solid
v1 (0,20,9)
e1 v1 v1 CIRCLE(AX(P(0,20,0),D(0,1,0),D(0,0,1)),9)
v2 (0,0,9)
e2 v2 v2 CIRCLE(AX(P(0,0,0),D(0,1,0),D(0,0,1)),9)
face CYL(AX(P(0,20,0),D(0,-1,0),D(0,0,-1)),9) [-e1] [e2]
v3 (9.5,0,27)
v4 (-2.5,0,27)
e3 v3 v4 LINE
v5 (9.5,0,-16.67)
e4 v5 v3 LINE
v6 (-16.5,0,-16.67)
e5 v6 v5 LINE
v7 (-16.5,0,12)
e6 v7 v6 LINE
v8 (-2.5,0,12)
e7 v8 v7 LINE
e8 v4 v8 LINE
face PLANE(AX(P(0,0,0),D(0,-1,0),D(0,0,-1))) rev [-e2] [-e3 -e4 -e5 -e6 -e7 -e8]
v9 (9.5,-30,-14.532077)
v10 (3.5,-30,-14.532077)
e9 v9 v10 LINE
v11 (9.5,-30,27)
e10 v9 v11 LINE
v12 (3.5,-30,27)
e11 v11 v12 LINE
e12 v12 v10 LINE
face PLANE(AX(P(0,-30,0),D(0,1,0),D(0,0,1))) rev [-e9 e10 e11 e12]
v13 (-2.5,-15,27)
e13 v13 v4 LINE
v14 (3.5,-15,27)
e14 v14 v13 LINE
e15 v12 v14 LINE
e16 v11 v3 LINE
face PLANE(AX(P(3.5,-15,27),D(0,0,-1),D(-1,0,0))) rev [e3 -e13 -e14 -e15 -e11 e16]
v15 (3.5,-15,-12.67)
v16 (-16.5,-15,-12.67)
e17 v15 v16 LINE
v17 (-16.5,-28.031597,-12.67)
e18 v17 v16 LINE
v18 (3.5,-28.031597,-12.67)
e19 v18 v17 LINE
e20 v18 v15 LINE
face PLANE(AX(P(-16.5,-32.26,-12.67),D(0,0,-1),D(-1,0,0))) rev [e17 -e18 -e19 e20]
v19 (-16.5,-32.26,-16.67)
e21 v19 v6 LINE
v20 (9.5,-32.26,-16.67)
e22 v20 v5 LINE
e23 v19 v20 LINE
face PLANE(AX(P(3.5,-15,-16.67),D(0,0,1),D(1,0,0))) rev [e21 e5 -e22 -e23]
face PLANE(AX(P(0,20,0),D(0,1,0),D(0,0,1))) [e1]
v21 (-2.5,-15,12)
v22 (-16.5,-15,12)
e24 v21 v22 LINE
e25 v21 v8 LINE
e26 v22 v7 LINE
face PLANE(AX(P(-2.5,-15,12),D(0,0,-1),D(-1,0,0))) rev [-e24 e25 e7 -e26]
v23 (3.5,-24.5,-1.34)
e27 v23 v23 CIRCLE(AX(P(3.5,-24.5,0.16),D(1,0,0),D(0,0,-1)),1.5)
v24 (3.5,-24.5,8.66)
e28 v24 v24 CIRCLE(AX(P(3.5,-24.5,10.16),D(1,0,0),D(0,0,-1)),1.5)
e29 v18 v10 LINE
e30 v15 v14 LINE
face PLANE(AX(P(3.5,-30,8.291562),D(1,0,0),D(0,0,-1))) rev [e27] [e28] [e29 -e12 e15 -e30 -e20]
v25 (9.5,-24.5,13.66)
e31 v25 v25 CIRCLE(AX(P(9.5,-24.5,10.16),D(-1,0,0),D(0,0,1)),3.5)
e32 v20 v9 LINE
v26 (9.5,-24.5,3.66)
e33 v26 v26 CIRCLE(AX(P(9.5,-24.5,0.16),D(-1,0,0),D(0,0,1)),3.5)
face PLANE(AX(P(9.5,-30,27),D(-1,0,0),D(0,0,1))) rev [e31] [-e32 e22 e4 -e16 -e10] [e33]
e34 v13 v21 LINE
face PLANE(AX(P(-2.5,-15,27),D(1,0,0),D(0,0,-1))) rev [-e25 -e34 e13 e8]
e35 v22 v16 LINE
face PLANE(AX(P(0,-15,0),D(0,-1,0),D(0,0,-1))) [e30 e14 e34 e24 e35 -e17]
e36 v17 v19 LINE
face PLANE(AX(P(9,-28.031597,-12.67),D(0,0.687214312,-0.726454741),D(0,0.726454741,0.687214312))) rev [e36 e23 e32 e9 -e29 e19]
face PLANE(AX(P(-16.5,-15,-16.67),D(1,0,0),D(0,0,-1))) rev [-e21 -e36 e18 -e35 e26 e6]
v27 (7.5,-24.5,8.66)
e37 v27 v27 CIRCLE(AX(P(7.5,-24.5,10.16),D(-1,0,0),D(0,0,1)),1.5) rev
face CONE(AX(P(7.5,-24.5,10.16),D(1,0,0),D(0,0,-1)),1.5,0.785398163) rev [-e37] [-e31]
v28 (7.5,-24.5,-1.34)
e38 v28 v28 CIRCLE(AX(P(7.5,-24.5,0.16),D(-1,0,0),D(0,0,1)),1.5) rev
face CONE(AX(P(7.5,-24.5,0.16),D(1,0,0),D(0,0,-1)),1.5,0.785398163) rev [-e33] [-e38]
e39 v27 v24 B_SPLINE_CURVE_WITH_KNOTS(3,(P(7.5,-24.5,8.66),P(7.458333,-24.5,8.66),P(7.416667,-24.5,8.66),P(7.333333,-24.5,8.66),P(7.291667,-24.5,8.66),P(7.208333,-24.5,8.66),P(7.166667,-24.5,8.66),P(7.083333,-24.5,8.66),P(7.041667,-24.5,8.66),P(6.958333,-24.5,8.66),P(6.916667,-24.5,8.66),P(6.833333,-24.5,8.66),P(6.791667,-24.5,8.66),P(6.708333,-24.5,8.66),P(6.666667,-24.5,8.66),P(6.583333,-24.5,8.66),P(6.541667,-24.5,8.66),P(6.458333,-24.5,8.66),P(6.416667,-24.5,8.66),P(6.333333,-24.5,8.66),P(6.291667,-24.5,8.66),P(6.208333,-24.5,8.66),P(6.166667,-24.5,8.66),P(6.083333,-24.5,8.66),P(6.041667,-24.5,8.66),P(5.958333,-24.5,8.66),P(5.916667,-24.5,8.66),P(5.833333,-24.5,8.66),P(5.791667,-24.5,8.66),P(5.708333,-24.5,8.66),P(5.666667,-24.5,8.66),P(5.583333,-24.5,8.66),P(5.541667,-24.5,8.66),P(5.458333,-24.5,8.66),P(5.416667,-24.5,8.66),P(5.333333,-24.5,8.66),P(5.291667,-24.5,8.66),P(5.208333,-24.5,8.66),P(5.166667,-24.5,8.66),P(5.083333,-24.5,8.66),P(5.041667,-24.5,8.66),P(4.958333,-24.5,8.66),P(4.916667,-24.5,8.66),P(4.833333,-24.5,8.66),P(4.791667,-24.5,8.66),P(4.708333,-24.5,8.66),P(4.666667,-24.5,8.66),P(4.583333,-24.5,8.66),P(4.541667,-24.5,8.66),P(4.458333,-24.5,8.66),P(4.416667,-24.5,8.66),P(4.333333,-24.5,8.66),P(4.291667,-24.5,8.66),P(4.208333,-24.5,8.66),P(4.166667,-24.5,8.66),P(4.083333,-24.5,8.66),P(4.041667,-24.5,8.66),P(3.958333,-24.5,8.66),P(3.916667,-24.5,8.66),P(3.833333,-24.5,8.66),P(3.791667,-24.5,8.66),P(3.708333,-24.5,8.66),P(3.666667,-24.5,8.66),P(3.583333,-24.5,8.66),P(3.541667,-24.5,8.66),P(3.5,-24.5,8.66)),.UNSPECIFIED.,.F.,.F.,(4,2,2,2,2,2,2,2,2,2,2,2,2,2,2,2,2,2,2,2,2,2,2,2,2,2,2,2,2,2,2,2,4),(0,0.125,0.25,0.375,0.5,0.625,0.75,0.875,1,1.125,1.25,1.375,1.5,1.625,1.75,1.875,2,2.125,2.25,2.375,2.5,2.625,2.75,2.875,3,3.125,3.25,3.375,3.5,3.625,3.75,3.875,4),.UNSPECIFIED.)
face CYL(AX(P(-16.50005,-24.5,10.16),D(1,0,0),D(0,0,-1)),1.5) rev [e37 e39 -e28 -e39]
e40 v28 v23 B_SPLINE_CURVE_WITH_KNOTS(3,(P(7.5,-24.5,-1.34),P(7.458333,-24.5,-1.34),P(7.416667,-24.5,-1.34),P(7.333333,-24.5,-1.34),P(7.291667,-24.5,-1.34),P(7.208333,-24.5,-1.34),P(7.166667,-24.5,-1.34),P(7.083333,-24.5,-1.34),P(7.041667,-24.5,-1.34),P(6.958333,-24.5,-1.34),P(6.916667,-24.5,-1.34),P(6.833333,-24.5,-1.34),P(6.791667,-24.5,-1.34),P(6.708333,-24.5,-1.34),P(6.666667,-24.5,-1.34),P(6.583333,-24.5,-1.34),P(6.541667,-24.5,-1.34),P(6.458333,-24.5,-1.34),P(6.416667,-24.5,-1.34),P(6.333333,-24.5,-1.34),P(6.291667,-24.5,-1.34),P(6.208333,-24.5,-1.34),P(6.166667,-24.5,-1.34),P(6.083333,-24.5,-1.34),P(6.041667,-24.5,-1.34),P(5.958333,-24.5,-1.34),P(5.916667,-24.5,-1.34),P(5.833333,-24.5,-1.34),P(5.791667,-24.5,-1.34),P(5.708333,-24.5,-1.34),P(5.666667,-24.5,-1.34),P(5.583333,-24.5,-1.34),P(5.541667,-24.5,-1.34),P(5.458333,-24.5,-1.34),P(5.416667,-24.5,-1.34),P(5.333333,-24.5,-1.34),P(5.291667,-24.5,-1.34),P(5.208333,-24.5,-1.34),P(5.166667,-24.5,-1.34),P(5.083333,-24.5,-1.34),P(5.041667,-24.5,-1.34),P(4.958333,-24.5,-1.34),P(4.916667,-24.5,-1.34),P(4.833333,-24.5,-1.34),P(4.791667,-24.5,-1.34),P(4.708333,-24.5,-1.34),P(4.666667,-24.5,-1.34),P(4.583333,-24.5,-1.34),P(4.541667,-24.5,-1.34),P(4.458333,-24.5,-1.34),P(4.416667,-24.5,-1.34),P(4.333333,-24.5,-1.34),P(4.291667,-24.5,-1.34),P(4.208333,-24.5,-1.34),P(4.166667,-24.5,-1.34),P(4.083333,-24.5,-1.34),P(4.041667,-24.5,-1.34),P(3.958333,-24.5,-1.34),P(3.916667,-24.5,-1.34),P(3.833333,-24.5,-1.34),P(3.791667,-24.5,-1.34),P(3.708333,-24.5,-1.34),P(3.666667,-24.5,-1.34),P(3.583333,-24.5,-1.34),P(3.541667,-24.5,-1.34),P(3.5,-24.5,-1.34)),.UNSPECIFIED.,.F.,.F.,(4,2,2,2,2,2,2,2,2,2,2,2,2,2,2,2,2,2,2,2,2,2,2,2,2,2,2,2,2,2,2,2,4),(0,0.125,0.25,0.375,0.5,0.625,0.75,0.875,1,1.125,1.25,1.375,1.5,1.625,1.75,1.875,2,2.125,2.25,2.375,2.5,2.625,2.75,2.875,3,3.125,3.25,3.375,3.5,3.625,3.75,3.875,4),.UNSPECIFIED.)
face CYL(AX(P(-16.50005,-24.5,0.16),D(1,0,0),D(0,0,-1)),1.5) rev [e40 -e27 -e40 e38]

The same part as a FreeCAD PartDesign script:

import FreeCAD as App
import Part
import Sketcher

V = App.Vector
Q = App.Units.Quantity


def edges_at(feature, points):
    """Names of the edges that pass closest to the given points."""
    edges = feature.Shape.Edges
    near = lambda p: min(range(len(edges)), key=lambda i: edges[i].distToShape(Part.Vertex(*p))[0])
    return sorted({f"Edge{near(p) + 1}" for p in points})


def add_polygon(sketch, points):
    """Adds a closed chain of lines whose ends are joined by coincident constraints."""
    first, n = sketch.GeometryCount, len(points)
    for a, b in zip(points, points[1:] + points[:1]):
        sketch.addGeometry(Part.LineSegment(App.Vector(*a, 0), App.Vector(*b, 0)), False)
    for i in range(n):
        sketch.addConstraint(Sketcher.Constraint("Coincident", first + i, 2, first + (i + 1) % n, 1))

doc = App.newDocument("Part")
body = doc.addObject("PartDesign::Body", "Body")

sketch1 = body.newObject("Sketcher::SketchObject", "Sketch")
sketch1.AttachmentSupport = (doc.getObject("XZ_Plane"), [""])
sketch1.MapMode = "FlatFace"
sketch1.addGeometry(Part.Circle(V(0, 0, 0), V(0, 0, 1), 9), False)
sketch1.addConstraint(Sketcher.Constraint("Coincident", 0, 3, -1, 1))
sketch1.addConstraint(Sketcher.Constraint("Diameter", 0, Q("18 mm")))
pad1 = body.newObject("PartDesign::Pad", "Pad")
pad1.Profile = sketch1
pad1.Length = 20
pad1.Reversed = True

sketch2 = body.newObject("Sketcher::SketchObject", "Sketch001")
sketch2.AttachmentSupport = (doc.getObject("XZ_Plane"), [""])
sketch2.MapMode = "FlatFace"
add_polygon(sketch2, [(-16, 27), (-16, -17), (4, -17), (4, 27)])
sketch2.addConstraint(Sketcher.Constraint("Vertical", 0))
sketch2.addConstraint(Sketcher.Constraint("Horizontal", 1))
sketch2.addConstraint(Sketcher.Constraint("Vertical", 2))
sketch2.addConstraint(Sketcher.Constraint("Horizontal", 3))
sketch2.addConstraint(Sketcher.Constraint("DistanceX", 1, 1, 1, 2, Q("20 mm")))
sketch2.addConstraint(Sketcher.Constraint("DistanceY", -1, 1, 2, 2, Q("27 mm")))
sketch2.addConstraint(Sketcher.Constraint("DistanceY", 0, 2, 0, 1, Q("43.67 mm")))
sketch2.addConstraint(Sketcher.Constraint("DistanceX", 0, 2, -1, 1, Q("16.5 mm")))
pad2 = body.newObject("PartDesign::Pad", "Pad001")
pad2.Profile = sketch2
pad2.Length = 15

sketch3 = body.newObject("Sketcher::SketchObject", "Sketch002")
sketch3.AttachmentSupport = (doc.getObject("XZ_Plane"), [""])
sketch3.MapMode = "FlatFace"
add_polygon(sketch3, [(-16, 12), (-16, 27), (-2, 27), (-2, 12)])
sketch3.addConstraint(Sketcher.Constraint("Vertical", 0))
sketch3.addConstraint(Sketcher.Constraint("Horizontal", 1))
sketch3.addConstraint(Sketcher.Constraint("Vertical", 2))
sketch3.addConstraint(Sketcher.Constraint("Horizontal", 3))
sketch3.addConstraint(Sketcher.Constraint("DistanceX", 1, 1, 1, 2, Q("14 mm")))
sketch3.addConstraint(Sketcher.Constraint("DistanceY", 0, 1, 0, 2, Q("15 mm")))
sketch3.addConstraint(Sketcher.Constraint("DistanceY", -1, 1, 0, 2, Q("27 mm")))
sketch3.addConstraint(Sketcher.Constraint("DistanceX", 0, 2, -1, 1, Q("16.5 mm")))
pocket1 = body.newObject("PartDesign::Pocket", "Pocket")
pocket1.Profile = sketch3
pocket1.Type = "ThroughAll"
pocket1.Reversed = True

sketch4 = body.newObject("Sketcher::SketchObject", "Sketch003")
sketch4.AttachmentSupport = (doc.getObject("XZ_Plane"), [""])
sketch4.MapMode = "FlatFace"
sketch4.AttachmentOffset = App.Placement(V(0, 0, 15), App.Rotation())
add_polygon(sketch4, [(-16.5, -12.7), (-16.5, -16.7), (3.5, -16.7), (3.5, -12.7)])
sketch4.addConstraint(Sketcher.Constraint("Vertical", 0))
sketch4.addConstraint(Sketcher.Constraint("Horizontal", 1))
sketch4.addConstraint(Sketcher.Constraint("Vertical", 2))
sketch4.addConstraint(Sketcher.Constraint("Horizontal", 3))
sketch4.addConstraint(Sketcher.Constraint("DistanceX", 1, 1, 1, 2, Q("20 mm")))
sketch4.addConstraint(Sketcher.Constraint("DistanceY", 0, 2, 0, 1, Q("4 mm")))
sketch4.addConstraint(Sketcher.Constraint("DistanceX", 0, 2, -1, 1, Q("16.5 mm")))
sketch4.addConstraint(Sketcher.Constraint("DistanceY", 0, 2, -1, 1, Q("16.67 mm")))
pad3 = body.newObject("PartDesign::Pad", "Pad002")
pad3.Profile = sketch4
pad3.Length = 17.26

sketch5 = body.newObject("Sketcher::SketchObject", "Sketch004")
sketch5.AttachmentSupport = (doc.getObject("YZ_Plane"), [""])
sketch5.MapMode = "FlatFace"
sketch5.AttachmentOffset = App.Placement(V(0, 0, -16.5), App.Rotation())
add_polygon(sketch5, [(-32.3, -12.7), (-28, -12.7), (-32.3, -16.7)])
sketch5.addConstraint(Sketcher.Constraint("Horizontal", 0))
sketch5.addConstraint(Sketcher.Constraint("Vertical", 2))
sketch5.addConstraint(Sketcher.Constraint("DistanceY", 2, 1, 2, 2, Q("4 mm")))
sketch5.addConstraint(Sketcher.Constraint("Angle", 1, Q("-136.59 deg")))
sketch5.addConstraint(Sketcher.Constraint("DistanceY", 0, 2, -1, 1, Q("12.67 mm")))
sketch5.addConstraint(Sketcher.Constraint("DistanceX", 1, 2, -1, 1, Q("32.26 mm")))
pocket2 = body.newObject("PartDesign::Pocket", "Pocket001")
pocket2.Profile = sketch5
pocket2.Type = "ThroughAll"
pocket2.Reversed = True

sketch6 = body.newObject("Sketcher::SketchObject", "Sketch005")
sketch6.AttachmentSupport = (doc.getObject("XZ_Plane"), [""])
sketch6.MapMode = "FlatFace"
add_polygon(sketch6, [(4, 27), (4, -17), (10, -17), (10, 27)])
sketch6.addConstraint(Sketcher.Constraint("Vertical", 0))
sketch6.addConstraint(Sketcher.Constraint("Horizontal", 1))
sketch6.addConstraint(Sketcher.Constraint("Vertical", 2))
sketch6.addConstraint(Sketcher.Constraint("Horizontal", 3))
sketch6.addConstraint(Sketcher.Constraint("DistanceX", 1, 1, 1, 2, Q("6 mm")))
sketch6.addConstraint(Sketcher.Constraint("DistanceY", -1, 1, 2, 2, Q("27 mm")))
sketch6.addConstraint(Sketcher.Constraint("DistanceY", 0, 2, 0, 1, Q("43.67 mm")))
sketch6.addConstraint(Sketcher.Constraint("DistanceX", -1, 1, 0, 2, Q("3.5 mm")))
pad4 = body.newObject("PartDesign::Pad", "Pad003")
pad4.Profile = sketch6
pad4.Length = 30

sketch7 = body.newObject("Sketcher::SketchObject", "Sketch006")
sketch7.AttachmentSupport = (doc.getObject("YZ_Plane"), [""])
sketch7.MapMode = "FlatFace"
sketch7.AttachmentOffset = App.Placement(V(0, 0, 9.5), App.Rotation())
sketch7.addGeometry(Part.Circle(V(-24.5, 10.2, 0), V(0, 0, 1), 1.5), False)
sketch7.addGeometry(Part.Circle(V(-24.5, 0.2, 0), V(0, 0, 1), 1.5), False)
sketch7.addConstraint(Sketcher.Constraint("Equal", 0, 1))
sketch7.addConstraint(Sketcher.Constraint("Vertical", 0, 3, 1, 3))
sketch7.addConstraint(Sketcher.Constraint("Diameter", 0, Q("3 mm")))
sketch7.addConstraint(Sketcher.Constraint("DistanceY", 1, 3, 0, 3, Q("10 mm")))
sketch7.addConstraint(Sketcher.Constraint("DistanceX", 0, 3, -1, 1, Q("24.5 mm")))
sketch7.addConstraint(Sketcher.Constraint("DistanceY", -1, 1, 0, 3, Q("10.16 mm")))
pocket3 = body.newObject("PartDesign::Pocket", "Pocket002")
pocket3.Profile = sketch7
pocket3.Type = "ThroughAll"

sketch8 = body.newObject("Sketcher::SketchObject", "Sketch007")
sketch8.AttachmentSupport = (doc.getObject("YZ_Plane"), [""])
sketch8.MapMode = "FlatFace"
sketch8.AttachmentOffset = App.Placement(V(0, 0, 3.5), App.Rotation())
add_polygon(sketch8, [(-30, -16.7), (-30, -14.5), (-32.3, -16.7)])
sketch8.addConstraint(Sketcher.Constraint("Vertical", 0))
sketch8.addConstraint(Sketcher.Constraint("Horizontal", 2))
sketch8.addConstraint(Sketcher.Constraint("DistanceX", 0, 2, -1, 1, Q("30 mm")))
sketch8.addConstraint(Sketcher.Constraint("DistanceX", 2, 1, 2, 2, Q("2.26 mm")))
sketch8.addConstraint(Sketcher.Constraint("Angle", 1, Q("-136.59 deg")))
sketch8.addConstraint(Sketcher.Constraint("DistanceY", 1, 2, -1, 1, Q("16.67 mm")))
pad5 = body.newObject("PartDesign::Pad", "Pad004")
pad5.Profile = sketch8
pad5.Length = 6
doc.recompute()

chamfer = body.newObject("PartDesign::Chamfer", "Chamfer")
chamfer.Base = (pad5, edges_at(pad5, [(9.5, -24.5, 11.66), (9.5, -24.5, 1.66)]))
chamfer.Size = 2

doc.recompute()
